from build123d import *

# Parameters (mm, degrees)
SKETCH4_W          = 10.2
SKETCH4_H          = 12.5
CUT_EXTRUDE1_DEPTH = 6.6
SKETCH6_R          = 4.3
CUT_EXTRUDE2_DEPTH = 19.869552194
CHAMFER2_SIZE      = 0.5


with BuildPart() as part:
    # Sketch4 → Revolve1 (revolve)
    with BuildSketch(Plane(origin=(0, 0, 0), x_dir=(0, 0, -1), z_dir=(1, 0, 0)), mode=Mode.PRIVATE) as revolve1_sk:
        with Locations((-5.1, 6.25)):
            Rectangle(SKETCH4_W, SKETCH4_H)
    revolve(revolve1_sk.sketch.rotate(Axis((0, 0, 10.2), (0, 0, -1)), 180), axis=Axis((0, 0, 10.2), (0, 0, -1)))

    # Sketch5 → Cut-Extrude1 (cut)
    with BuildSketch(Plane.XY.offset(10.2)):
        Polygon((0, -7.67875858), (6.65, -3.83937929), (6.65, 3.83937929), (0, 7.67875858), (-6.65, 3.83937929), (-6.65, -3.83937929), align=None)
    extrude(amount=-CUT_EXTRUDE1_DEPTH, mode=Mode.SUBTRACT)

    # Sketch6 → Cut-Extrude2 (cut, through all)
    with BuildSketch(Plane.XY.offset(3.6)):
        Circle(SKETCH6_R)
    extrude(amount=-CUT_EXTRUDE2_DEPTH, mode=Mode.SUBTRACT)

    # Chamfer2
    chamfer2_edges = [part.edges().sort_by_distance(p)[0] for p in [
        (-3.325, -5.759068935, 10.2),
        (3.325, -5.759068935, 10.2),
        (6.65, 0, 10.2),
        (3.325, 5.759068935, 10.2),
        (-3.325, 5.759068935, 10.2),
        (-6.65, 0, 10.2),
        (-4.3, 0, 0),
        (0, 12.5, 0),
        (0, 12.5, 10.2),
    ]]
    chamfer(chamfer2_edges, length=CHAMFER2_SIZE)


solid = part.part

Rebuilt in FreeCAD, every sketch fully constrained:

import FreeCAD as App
import Part
import Sketcher

V = App.Vector
Q = App.Units.Quantity


def edges_at(feature, points):
    """Names of the edges that pass closest to the given points."""
    edges = feature.Shape.Edges
    near = lambda p: min(range(len(edges)), key=lambda i: edges[i].distToShape(Part.Vertex(*p))[0])
    return sorted({f"Edge{near(p) + 1}" for p in points})


def add_polygon(sketch, points):
    """Adds a closed chain of lines whose ends are joined by coincident constraints."""
    first, n = sketch.GeometryCount, len(points)
    for a, b in zip(points, points[1:] + points[:1]):
        sketch.addGeometry(Part.LineSegment(App.Vector(*a, 0), App.Vector(*b, 0)), False)
    for i in range(n):
        sketch.addConstraint(Sketcher.Constraint("Coincident", first + i, 2, first + (i + 1) % n, 1))

doc = App.newDocument("Part")
body = doc.addObject("PartDesign::Body", "Body")

# Sketch on YZ plane
sketch1 = doc.addObject("Sketcher::SketchObject", "Sketch")
body.addObject(sketch1)
sketch1.AttachmentSupport = (doc.YZ_Plane, [""])
sketch1.MapMode = "FlatFace"
add_polygon(sketch1, [(12.5, 10.2), (0, 10.2), (0, 0), (12.5, 0)])  # lines 0-3
sketch1.addConstraint(Sketcher.Constraint("Horizontal", 0))
sketch1.addConstraint(Sketcher.Constraint("Vertical", 1))
sketch1.addConstraint(Sketcher.Constraint("Horizontal", 2))
sketch1.addConstraint(Sketcher.Constraint("Vertical", 3))
sketch1.addConstraint(Sketcher.Constraint("Coincident", 1, 2, -1, 1))
sketch1.addConstraint(Sketcher.Constraint("DistanceX", 0, 2, 0, 1, Q("12.5 mm")))
sketch1.addConstraint(Sketcher.Constraint("DistanceY", 1, 2, 1, 1, Q("10.2 mm")))
revolution = doc.addObject("PartDesign::Revolution", "Revolution")
body.addObject(revolution)
revolution.Profile = sketch1
revolution.ReferenceAxis = (sketch1, ["V_Axis"])
revolution.Angle = 360

# Sketch on XY plane
sketch2 = doc.addObject("Sketcher::SketchObject", "Sketch001")
body.addObject(sketch2)
sketch2.AttachmentSupport = (doc.XY_Plane, [""])
sketch2.MapMode = "FlatFace"
sketch2.AttachmentOffset = App.Placement(V(0, 0, 10.2), App.Rotation())
add_polygon(sketch2, [(0, -7.678759), (6.65, -3.839379), (6.65, 3.839379), (0, 7.678759), (-6.65, 3.839379), (-6.65, -3.839379)])  # lines 0-5
sketch2.addConstraint(Sketcher.Constraint("Vertical", 1))
sketch2.addConstraint(Sketcher.Constraint("Vertical", 4))
sketch2.addConstraint(Sketcher.Constraint("Symmetric", 0, 2, 3, 2, -1, 1))
sketch2.addConstraint(Sketcher.Constraint("Symmetric", 2, 2, 5, 2, -1, 1))
sketch2.addConstraint(Sketcher.Constraint("PointOnObject", 2, 2, -2))
sketch2.addConstraint(Sketcher.Constraint("Parallel", 2, 5))
sketch2.addConstraint(Sketcher.Constraint("Horizontal", 1, 2, 3, 2))
sketch2.addConstraint(Sketcher.Constraint("Angle", 0, Q("30 deg")))
sketch2.addConstraint(Sketcher.Constraint("DistanceX", 3, 2, 1, 2, Q("13.3 mm")))
sketch2.addConstraint(Sketcher.Constraint("DistanceY", 1, 1, 1, 2, Q("7.678759 mm")))
pocket1 = doc.addObject("PartDesign::Pocket", "Pocket")
body.addObject(pocket1)
pocket1.Profile = sketch2
pocket1.Length = 6.6

# Sketch on XY plane
sketch3 = doc.addObject("Sketcher::SketchObject", "Sketch002")
body.addObject(sketch3)
sketch3.AttachmentSupport = (doc.XY_Plane, [""])
sketch3.MapMode = "FlatFace"
sketch3.AttachmentOffset = App.Placement(V(0, 0, 3.6), App.Rotation())
sketch3.addGeometry(Part.Circle(V(0, 0, 0), V(0, 0, 1), 4.3), False)
sketch3.addConstraint(Sketcher.Constraint("Coincident", 0, 3, -1, 1))
sketch3.addConstraint(Sketcher.Constraint("Diameter", 0, Q("8.6 mm")))
pocket2 = doc.addObject("PartDesign::Pocket", "Pocket001")
body.addObject(pocket2)
pocket2.Profile = sketch3
pocket2.Type = "ThroughAll"
doc.recompute()

chamfer = doc.addObject("PartDesign::Chamfer", "Chamfer")
body.addObject(chamfer)
chamfer.Base = (pocket2, edges_at(pocket2, [
    (-3.325, -5.759, 10.2),
    (3.325, -5.759, 10.2),
    (6.65, 0, 10.2),
    (3.325, 5.759, 10.2),
    (-3.325, 5.759, 10.2),
    (-6.65, 0, 10.2),
    (-4.3, 0, 0),
    (0, 12.5, 0),
    (0, 12.5, 10.2),
]))
chamfer.Size = 0.5

doc.recompute()
